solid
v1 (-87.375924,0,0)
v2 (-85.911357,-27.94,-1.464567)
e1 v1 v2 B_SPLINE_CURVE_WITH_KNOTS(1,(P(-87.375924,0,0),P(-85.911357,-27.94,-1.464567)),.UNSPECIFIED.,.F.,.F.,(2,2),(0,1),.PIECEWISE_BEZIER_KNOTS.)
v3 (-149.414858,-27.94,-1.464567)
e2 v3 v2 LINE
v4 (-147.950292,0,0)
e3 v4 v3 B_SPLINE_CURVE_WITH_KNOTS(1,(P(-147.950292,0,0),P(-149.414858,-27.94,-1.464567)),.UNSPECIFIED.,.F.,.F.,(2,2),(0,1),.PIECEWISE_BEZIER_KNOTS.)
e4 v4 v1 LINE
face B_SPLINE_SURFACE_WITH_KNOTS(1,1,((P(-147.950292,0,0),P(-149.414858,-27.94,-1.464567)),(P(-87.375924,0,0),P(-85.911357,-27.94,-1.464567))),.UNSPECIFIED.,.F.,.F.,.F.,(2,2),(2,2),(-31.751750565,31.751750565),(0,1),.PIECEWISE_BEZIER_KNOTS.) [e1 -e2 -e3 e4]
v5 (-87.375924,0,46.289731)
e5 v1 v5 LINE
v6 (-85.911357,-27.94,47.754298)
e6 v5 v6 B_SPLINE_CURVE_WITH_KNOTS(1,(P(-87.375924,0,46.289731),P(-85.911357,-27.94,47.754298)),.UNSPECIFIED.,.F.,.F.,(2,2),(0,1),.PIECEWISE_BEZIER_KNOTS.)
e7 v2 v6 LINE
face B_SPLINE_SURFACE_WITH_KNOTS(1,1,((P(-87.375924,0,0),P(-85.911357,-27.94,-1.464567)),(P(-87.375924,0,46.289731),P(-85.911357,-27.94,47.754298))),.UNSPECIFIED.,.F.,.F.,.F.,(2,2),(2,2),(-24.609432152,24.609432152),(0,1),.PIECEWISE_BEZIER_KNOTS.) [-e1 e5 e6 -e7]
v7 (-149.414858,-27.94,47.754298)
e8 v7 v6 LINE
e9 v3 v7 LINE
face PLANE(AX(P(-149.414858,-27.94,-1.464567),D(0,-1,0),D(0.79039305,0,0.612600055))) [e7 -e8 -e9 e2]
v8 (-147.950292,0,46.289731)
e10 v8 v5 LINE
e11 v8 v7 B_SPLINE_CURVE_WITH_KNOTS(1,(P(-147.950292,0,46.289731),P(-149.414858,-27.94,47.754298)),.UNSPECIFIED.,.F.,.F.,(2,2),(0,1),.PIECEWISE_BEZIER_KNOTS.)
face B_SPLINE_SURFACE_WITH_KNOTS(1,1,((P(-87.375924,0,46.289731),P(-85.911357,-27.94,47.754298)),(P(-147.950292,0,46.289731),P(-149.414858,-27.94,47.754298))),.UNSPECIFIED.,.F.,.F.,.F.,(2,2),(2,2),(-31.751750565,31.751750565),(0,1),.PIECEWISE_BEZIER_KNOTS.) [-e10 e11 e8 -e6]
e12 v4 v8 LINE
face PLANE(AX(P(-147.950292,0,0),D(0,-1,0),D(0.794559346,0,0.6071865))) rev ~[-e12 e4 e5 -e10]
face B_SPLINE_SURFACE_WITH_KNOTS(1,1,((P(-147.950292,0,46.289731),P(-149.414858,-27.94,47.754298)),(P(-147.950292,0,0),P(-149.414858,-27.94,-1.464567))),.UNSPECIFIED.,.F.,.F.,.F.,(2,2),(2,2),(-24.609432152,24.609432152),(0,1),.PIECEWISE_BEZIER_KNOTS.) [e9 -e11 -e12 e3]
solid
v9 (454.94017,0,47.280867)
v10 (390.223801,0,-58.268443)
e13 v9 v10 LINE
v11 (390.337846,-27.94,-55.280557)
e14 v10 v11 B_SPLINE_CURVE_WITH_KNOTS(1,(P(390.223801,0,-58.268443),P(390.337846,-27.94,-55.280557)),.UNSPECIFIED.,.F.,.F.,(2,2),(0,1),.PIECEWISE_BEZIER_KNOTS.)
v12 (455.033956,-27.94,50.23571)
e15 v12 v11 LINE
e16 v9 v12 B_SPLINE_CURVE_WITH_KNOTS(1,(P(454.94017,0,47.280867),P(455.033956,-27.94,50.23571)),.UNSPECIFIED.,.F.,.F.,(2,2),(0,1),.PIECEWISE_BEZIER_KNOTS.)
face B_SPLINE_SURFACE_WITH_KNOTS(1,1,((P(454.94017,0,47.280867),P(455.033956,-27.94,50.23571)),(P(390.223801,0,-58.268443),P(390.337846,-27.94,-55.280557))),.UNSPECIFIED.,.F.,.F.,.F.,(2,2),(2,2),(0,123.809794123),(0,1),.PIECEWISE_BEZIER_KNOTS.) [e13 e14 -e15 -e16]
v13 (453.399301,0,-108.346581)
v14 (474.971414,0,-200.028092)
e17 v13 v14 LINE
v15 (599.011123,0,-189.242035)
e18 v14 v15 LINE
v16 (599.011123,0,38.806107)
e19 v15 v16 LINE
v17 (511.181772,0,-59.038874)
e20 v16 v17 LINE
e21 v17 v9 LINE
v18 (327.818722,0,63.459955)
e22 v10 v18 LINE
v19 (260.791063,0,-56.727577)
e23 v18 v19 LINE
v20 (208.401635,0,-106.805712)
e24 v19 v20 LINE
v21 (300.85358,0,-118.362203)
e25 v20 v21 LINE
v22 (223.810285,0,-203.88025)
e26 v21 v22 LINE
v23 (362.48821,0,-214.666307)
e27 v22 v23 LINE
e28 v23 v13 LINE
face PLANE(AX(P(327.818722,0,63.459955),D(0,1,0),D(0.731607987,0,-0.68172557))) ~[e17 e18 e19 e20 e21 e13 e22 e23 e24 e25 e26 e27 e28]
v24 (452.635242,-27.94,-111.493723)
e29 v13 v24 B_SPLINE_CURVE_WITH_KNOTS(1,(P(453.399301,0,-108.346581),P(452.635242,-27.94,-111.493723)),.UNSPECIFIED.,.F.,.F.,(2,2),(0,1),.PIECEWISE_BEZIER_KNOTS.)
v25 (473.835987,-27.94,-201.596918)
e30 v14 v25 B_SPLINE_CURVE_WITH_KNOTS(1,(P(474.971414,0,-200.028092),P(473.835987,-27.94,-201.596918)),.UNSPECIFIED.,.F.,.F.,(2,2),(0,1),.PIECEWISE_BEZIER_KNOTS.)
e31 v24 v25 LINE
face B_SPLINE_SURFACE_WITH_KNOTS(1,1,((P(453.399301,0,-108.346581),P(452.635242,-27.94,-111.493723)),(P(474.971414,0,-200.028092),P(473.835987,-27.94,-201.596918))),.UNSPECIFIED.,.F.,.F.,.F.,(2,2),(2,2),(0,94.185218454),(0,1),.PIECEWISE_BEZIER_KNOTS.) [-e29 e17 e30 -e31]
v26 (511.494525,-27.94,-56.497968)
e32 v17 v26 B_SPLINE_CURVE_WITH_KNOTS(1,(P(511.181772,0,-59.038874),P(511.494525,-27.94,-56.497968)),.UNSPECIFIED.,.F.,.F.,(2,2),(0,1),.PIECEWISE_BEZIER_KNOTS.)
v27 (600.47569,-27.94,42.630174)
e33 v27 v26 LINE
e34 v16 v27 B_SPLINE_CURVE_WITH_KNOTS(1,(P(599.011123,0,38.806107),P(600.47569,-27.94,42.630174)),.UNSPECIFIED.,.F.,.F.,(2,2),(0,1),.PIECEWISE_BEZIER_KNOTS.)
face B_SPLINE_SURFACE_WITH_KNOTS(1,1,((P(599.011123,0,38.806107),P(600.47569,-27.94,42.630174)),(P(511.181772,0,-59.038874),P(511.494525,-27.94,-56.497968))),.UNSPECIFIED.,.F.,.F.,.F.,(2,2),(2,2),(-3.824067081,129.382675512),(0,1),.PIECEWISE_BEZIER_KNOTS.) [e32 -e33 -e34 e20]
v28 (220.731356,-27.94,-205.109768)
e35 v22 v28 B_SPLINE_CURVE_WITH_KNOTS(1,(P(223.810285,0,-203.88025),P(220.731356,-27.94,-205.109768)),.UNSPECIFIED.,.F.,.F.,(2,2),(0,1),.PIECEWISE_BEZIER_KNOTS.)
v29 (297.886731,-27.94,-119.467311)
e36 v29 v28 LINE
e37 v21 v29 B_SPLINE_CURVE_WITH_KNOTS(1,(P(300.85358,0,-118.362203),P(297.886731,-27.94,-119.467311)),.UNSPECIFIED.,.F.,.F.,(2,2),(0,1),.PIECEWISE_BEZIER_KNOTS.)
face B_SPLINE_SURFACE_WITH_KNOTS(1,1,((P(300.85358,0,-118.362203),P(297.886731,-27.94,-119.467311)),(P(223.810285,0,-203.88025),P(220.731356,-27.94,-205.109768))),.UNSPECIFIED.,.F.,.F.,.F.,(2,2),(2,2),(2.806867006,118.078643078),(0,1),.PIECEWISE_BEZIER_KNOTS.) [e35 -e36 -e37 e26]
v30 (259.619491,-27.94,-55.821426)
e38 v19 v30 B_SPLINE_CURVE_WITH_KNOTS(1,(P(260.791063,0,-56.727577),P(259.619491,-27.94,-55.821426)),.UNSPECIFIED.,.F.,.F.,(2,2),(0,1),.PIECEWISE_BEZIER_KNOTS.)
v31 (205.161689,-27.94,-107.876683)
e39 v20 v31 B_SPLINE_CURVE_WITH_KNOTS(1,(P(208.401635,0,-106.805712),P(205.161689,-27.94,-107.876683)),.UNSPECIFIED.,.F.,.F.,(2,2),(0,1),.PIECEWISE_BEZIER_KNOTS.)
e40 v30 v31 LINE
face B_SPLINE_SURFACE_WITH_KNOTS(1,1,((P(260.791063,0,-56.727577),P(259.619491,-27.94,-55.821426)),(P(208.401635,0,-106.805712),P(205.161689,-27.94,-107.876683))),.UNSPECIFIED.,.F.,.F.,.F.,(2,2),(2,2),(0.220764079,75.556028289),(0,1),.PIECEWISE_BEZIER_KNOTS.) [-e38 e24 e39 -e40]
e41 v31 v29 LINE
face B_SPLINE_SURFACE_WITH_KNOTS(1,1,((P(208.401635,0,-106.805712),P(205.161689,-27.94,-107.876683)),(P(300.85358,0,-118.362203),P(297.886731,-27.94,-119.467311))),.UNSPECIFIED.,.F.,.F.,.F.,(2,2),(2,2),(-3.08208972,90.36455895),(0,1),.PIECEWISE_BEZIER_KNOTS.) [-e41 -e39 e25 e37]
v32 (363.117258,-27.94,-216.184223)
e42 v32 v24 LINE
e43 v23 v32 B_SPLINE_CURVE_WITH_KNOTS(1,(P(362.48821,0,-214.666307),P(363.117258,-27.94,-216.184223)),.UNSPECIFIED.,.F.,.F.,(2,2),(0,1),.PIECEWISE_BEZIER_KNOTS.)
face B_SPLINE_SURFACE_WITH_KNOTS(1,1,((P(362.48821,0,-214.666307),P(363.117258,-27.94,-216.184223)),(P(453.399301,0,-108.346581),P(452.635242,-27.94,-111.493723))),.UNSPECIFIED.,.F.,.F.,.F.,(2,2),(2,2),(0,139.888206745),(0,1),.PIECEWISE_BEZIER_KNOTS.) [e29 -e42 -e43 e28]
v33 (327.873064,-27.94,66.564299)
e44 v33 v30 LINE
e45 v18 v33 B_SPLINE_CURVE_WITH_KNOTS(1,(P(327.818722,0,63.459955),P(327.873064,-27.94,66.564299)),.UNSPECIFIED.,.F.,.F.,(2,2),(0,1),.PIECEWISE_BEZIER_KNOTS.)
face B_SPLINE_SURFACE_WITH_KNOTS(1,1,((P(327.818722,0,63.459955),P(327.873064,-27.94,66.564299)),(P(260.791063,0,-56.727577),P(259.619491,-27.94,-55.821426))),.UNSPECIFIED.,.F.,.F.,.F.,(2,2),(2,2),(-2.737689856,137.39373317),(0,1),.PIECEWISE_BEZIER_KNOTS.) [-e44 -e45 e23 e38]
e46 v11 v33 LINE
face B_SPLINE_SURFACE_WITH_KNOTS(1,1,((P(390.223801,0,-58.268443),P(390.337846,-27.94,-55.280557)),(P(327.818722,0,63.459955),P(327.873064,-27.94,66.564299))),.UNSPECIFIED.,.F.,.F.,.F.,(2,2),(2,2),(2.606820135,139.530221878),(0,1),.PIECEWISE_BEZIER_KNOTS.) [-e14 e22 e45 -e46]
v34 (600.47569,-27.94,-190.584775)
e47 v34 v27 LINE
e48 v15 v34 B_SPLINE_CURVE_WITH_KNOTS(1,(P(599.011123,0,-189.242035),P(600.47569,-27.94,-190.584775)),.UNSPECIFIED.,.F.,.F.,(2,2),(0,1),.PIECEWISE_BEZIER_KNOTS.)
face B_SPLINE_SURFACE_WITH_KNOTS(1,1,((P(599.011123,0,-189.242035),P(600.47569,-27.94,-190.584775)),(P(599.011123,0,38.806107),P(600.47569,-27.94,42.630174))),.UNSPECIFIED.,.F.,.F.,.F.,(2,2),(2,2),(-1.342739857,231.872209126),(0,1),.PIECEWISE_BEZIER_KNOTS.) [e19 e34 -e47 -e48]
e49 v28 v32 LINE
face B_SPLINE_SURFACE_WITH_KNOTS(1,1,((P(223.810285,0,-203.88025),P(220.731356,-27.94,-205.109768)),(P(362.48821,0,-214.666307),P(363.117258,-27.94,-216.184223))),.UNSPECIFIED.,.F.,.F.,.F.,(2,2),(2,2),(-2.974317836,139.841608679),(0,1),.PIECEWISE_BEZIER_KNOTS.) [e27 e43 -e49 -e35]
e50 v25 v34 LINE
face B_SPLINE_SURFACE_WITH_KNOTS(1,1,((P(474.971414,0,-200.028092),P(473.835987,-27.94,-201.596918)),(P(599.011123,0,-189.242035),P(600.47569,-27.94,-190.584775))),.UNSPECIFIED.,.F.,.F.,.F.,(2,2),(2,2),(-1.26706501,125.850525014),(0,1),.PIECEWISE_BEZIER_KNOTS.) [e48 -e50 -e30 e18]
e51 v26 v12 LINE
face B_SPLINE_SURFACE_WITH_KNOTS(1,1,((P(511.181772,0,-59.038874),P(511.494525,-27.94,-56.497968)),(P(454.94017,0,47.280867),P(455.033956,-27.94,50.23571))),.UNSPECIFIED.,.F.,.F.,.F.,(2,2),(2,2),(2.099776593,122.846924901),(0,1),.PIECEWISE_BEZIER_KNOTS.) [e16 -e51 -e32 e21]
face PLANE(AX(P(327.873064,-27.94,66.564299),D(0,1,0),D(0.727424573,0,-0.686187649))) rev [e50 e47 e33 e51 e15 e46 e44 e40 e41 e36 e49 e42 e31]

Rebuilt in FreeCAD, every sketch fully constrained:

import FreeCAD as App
import Part
import Sketcher
Q = App.Units.Quantity


def add_polygon(sketch, points):
    """Adds a closed chain of lines whose ends are joined by coincident constraints."""
    first, n = sketch.GeometryCount, len(points)
    for a, b in zip(points, points[1:] + points[:1]):
        sketch.addGeometry(Part.LineSegment(App.Vector(*a, 0), App.Vector(*b, 0)), False)
    for i in range(n):
        sketch.addConstraint(Sketcher.Constraint("Coincident", first + i, 2, first + (i + 1) % n, 1))

doc = App.newDocument("Part")
params = doc.addObject("Spreadsheet::Sheet", "Params")
for row, (alias, value) in enumerate([
    ("pad1_length", "1.1 in"),
    ("pad1_taper", "3.0006 deg"),
    ("pad2_length", "1.1 in"),
    ("pad2_taper", "3.0006 deg"),
], start=1):
    params.set(f"A{row}", alias)
    params.set(f"B{row}", "=" + value)
    params.setAlias(f"B{row}", alias)

body = doc.addObject("PartDesign::Body", "Body")

# Sketch on XZ plane
sketch1 = body.newObject("Sketcher::SketchObject", "Sketch")
sketch1.AttachmentSupport = (doc.getObject("XZ_Plane"), [""])
sketch1.MapMode = "FlatFace"
add_polygon(sketch1, [(327.818722, 63.459955), (260.791063, -56.727577), (208.401635, -106.805712), (300.85358, -118.362203), (223.810285, -203.88025), (362.48821, -214.666307), (453.399301, -108.346581), (474.971414, -200.028092), (599.011123, -189.242035), (599.011123, 38.806107), (511.181772, -59.038874), (454.94017, 47.280867), (390.223801, -58.268443)])  # lines 0-12
sketch1.addConstraint([
    Sketcher.Constraint("Vertical", 8),
    Sketcher.Constraint("DistanceY", 4, 2, 2, 2, Q("3.7915001 in")),
    Sketcher.Constraint("DistanceX", -1, 1, 5, 2, 453.399301),
    Sketcher.Constraint("DistanceX", -1, 1, 11, 2, 390.223801),
    Sketcher.Constraint("DistanceY", 6, 2, 8, 2, 238.834199),
    Sketcher.Constraint("DistanceX", 10, 2, 9, 2, 56.241602),
    Sketcher.Constraint("Distance", 1, 72.473939),
    Sketcher.Constraint("Distance", 4, 139.09675),
    Sketcher.Constraint("Distance", 6, 94.185218),
    Sketcher.Constraint("DistanceY", 8, 1, 8, 2, 228.048142),
    Sketcher.Constraint("DistanceY", 1, 2, -1, 1, 106.805712),
    Sketcher.Constraint("DistanceX", -1, 1, 2, 2, 300.85358),
    Sketcher.Constraint("DistanceY", 3, 2, -1, 1, 203.88025),
    Sketcher.Constraint("DistanceX", -1, 1, 4, 2, 362.48821),
    Sketcher.Constraint("DistanceY", 5, 2, -1, 1, 108.346581),
    Sketcher.Constraint("DistanceY", 6, 2, -1, 1, 200.028092),
    Sketcher.Constraint("DistanceX", -1, 1, 9, 2, 511.181772),
    Sketcher.Constraint("DistanceX", -1, 1, 12, 2, 327.818722),
    Sketcher.Constraint("DistanceX", 1, 2, 0, 2, 52.389428),
    Sketcher.Constraint("DistanceY", 2, 2, 1, 2, 11.556491),
    Sketcher.Constraint("DistanceX", 1, 2, 3, 2, 15.40865),
    Sketcher.Constraint("DistanceX", 6, 2, 7, 2, 124.03971),
    Sketcher.Constraint("DistanceY", 9, 2, 8, 2, 97.844981),
    Sketcher.Constraint("DistanceY", 9, 2, 10, 2, 106.31974),
    Sketcher.Constraint("DistanceY", 5, 2, 11, 2, 50.078139),
    Sketcher.Constraint("DistanceY", 10, 2, 12, 2, 16.179089),
])
pad1 = body.newObject("PartDesign::Pad", "Pad")
pad1.Profile = sketch1
pad1.setExpression("Length", "Params.pad1_length")
pad1.setExpression("TaperAngle", "Params.pad1_taper")
body2 = doc.addObject("PartDesign::Body", "Body001")

# Sketch on XZ plane
sketch2 = body2.newObject("Sketcher::SketchObject", "Sketch001")
sketch2.AttachmentSupport = (doc.getObject("XZ_Plane001"), [""])
sketch2.MapMode = "FlatFace"
add_polygon(sketch2, [(-147.950292, 46.289731), (-147.950292, 0), (-87.375924, 0), (-87.375924, 46.289731)])  # lines 0-3
sketch2.addConstraint([
    Sketcher.Constraint("Vertical", 0),
    Sketcher.Constraint("Horizontal", 1),
    Sketcher.Constraint("Vertical", 2),
    Sketcher.Constraint("Horizontal", 3),
    Sketcher.Constraint("PointOnObject", 0, 2, -1),
    Sketcher.Constraint("DistanceY", 0, 2, 0, 1, 46.289731),
    Sketcher.Constraint("DistanceX", 1, 1, 1, 2, 60.574368),
    Sketcher.Constraint("DistanceX", 0, 2, -1, 1, 147.950292),
])
pad2 = body2.newObject("PartDesign::Pad", "Pad001")
pad2.Profile = sketch2
pad2.setExpression("Length", "Params.pad2_length")
pad2.setExpression("TaperAngle", "Params.pad2_taper")

doc.recompute()
